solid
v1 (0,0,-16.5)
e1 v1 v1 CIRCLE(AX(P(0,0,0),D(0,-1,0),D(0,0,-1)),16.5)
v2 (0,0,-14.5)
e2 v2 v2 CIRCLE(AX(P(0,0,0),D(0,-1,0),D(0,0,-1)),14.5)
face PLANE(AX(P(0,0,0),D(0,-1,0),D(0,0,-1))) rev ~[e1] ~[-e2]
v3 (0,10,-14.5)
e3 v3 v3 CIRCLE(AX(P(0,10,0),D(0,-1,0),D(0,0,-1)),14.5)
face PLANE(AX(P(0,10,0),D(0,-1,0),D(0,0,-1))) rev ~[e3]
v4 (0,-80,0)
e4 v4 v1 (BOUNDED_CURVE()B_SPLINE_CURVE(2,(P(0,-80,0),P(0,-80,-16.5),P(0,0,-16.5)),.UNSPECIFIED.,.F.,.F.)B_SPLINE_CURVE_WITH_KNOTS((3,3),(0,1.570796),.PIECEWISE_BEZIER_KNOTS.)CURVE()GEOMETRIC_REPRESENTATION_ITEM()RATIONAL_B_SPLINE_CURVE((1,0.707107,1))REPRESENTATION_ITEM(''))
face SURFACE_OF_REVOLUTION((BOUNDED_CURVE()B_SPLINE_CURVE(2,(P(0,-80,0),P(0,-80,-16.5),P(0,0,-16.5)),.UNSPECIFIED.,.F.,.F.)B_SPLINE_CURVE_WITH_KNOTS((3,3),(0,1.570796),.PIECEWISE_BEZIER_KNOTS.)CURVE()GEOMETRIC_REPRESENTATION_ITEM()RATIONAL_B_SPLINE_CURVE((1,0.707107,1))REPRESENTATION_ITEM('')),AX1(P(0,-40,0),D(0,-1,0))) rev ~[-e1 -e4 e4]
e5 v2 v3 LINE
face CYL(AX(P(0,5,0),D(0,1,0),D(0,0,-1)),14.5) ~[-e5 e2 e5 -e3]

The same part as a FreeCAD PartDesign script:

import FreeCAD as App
import Part
import Sketcher

V = App.Vector
Q = App.Units.Quantity

doc = App.newDocument("Part")
params = doc.addObject("Spreadsheet::Sheet", "Params")
for row, (alias, value) in enumerate([
    ("sketch1_width", "10 mm"),
    ("sketch1_height", "2 mm"),
    ("revolution_angle", "360 deg"),
], start=1):
    params.set(f"A{row}", alias)
    params.set(f"B{row}", "=" + value)
    params.setAlias(f"B{row}", alias)

body = doc.addObject("PartDesign::Body", "Body")

# Sketch on YZ plane
sketch1 = body.newObject("Sketcher::SketchObject", "Sketch")
sketch1.AttachmentSupport = (doc.getObject("YZ_Plane"), [""])
sketch1.MapMode = "FlatFace"
sketch1.addGeometry(Part.BSplineCurve([V(-80, 0, 0), V(-80, -16.5, 0), V(0, -16.5, 0)], [3, 3], [0, 1.570796], False, 2, [1, 0.707107, 1], False), False)
sketch1.addGeometry(Part.LineSegment(V(0, -16.5, 0), V(0, -14.5, 0)), False)
sketch1.addGeometry(Part.LineSegment(V(0, -14.5, 0), V(10, -14.5, 0)), False)
sketch1.addGeometry(Part.LineSegment(V(10, -14.5, 0), V(10, 0, 0)), False)
sketch1.addGeometry(Part.LineSegment(V(10, 0, 0), V(-80, 0, 0)), False)
sketch1.addConstraint(Sketcher.Constraint("Block", 0))
sketch1.addConstraint(Sketcher.Constraint("Coincident", 0, 2, 1, 1))
sketch1.addConstraint(Sketcher.Constraint("Coincident", 1, 2, 2, 1))
sketch1.addConstraint(Sketcher.Constraint("Coincident", 2, 2, 3, 1))
sketch1.addConstraint(Sketcher.Constraint("Coincident", 3, 2, 4, 1))
sketch1.addConstraint(Sketcher.Constraint("Coincident", 4, 2, 0, 1))
sketch1.addConstraint(Sketcher.Constraint("Vertical", 1))
sketch1.addConstraint(Sketcher.Constraint("Horizontal", 2))
sketch1.addConstraint(Sketcher.Constraint("Vertical", 3))
sketch1.addConstraint(Sketcher.Constraint("Horizontal", 4))
sketch1.addConstraint(Sketcher.Constraint("DistanceX", 2, 1, 2, 2, Q("10 mm")))
sketch1.addConstraint(Sketcher.Constraint("DistanceY", 1, 1, 1, 2, Q("2 mm")))
sketch1.setExpression("Constraints[10]", "Params.sketch1_width")
sketch1.setExpression("Constraints[11]", "Params.sketch1_height")
revolution = body.newObject("PartDesign::Revolution", "Revolution")
revolution.Profile = sketch1
revolution.ReferenceAxis = (sketch1, ["H_Axis"])
revolution.setExpression("Angle", "Params.revolution_angle")

doc.recompute()
